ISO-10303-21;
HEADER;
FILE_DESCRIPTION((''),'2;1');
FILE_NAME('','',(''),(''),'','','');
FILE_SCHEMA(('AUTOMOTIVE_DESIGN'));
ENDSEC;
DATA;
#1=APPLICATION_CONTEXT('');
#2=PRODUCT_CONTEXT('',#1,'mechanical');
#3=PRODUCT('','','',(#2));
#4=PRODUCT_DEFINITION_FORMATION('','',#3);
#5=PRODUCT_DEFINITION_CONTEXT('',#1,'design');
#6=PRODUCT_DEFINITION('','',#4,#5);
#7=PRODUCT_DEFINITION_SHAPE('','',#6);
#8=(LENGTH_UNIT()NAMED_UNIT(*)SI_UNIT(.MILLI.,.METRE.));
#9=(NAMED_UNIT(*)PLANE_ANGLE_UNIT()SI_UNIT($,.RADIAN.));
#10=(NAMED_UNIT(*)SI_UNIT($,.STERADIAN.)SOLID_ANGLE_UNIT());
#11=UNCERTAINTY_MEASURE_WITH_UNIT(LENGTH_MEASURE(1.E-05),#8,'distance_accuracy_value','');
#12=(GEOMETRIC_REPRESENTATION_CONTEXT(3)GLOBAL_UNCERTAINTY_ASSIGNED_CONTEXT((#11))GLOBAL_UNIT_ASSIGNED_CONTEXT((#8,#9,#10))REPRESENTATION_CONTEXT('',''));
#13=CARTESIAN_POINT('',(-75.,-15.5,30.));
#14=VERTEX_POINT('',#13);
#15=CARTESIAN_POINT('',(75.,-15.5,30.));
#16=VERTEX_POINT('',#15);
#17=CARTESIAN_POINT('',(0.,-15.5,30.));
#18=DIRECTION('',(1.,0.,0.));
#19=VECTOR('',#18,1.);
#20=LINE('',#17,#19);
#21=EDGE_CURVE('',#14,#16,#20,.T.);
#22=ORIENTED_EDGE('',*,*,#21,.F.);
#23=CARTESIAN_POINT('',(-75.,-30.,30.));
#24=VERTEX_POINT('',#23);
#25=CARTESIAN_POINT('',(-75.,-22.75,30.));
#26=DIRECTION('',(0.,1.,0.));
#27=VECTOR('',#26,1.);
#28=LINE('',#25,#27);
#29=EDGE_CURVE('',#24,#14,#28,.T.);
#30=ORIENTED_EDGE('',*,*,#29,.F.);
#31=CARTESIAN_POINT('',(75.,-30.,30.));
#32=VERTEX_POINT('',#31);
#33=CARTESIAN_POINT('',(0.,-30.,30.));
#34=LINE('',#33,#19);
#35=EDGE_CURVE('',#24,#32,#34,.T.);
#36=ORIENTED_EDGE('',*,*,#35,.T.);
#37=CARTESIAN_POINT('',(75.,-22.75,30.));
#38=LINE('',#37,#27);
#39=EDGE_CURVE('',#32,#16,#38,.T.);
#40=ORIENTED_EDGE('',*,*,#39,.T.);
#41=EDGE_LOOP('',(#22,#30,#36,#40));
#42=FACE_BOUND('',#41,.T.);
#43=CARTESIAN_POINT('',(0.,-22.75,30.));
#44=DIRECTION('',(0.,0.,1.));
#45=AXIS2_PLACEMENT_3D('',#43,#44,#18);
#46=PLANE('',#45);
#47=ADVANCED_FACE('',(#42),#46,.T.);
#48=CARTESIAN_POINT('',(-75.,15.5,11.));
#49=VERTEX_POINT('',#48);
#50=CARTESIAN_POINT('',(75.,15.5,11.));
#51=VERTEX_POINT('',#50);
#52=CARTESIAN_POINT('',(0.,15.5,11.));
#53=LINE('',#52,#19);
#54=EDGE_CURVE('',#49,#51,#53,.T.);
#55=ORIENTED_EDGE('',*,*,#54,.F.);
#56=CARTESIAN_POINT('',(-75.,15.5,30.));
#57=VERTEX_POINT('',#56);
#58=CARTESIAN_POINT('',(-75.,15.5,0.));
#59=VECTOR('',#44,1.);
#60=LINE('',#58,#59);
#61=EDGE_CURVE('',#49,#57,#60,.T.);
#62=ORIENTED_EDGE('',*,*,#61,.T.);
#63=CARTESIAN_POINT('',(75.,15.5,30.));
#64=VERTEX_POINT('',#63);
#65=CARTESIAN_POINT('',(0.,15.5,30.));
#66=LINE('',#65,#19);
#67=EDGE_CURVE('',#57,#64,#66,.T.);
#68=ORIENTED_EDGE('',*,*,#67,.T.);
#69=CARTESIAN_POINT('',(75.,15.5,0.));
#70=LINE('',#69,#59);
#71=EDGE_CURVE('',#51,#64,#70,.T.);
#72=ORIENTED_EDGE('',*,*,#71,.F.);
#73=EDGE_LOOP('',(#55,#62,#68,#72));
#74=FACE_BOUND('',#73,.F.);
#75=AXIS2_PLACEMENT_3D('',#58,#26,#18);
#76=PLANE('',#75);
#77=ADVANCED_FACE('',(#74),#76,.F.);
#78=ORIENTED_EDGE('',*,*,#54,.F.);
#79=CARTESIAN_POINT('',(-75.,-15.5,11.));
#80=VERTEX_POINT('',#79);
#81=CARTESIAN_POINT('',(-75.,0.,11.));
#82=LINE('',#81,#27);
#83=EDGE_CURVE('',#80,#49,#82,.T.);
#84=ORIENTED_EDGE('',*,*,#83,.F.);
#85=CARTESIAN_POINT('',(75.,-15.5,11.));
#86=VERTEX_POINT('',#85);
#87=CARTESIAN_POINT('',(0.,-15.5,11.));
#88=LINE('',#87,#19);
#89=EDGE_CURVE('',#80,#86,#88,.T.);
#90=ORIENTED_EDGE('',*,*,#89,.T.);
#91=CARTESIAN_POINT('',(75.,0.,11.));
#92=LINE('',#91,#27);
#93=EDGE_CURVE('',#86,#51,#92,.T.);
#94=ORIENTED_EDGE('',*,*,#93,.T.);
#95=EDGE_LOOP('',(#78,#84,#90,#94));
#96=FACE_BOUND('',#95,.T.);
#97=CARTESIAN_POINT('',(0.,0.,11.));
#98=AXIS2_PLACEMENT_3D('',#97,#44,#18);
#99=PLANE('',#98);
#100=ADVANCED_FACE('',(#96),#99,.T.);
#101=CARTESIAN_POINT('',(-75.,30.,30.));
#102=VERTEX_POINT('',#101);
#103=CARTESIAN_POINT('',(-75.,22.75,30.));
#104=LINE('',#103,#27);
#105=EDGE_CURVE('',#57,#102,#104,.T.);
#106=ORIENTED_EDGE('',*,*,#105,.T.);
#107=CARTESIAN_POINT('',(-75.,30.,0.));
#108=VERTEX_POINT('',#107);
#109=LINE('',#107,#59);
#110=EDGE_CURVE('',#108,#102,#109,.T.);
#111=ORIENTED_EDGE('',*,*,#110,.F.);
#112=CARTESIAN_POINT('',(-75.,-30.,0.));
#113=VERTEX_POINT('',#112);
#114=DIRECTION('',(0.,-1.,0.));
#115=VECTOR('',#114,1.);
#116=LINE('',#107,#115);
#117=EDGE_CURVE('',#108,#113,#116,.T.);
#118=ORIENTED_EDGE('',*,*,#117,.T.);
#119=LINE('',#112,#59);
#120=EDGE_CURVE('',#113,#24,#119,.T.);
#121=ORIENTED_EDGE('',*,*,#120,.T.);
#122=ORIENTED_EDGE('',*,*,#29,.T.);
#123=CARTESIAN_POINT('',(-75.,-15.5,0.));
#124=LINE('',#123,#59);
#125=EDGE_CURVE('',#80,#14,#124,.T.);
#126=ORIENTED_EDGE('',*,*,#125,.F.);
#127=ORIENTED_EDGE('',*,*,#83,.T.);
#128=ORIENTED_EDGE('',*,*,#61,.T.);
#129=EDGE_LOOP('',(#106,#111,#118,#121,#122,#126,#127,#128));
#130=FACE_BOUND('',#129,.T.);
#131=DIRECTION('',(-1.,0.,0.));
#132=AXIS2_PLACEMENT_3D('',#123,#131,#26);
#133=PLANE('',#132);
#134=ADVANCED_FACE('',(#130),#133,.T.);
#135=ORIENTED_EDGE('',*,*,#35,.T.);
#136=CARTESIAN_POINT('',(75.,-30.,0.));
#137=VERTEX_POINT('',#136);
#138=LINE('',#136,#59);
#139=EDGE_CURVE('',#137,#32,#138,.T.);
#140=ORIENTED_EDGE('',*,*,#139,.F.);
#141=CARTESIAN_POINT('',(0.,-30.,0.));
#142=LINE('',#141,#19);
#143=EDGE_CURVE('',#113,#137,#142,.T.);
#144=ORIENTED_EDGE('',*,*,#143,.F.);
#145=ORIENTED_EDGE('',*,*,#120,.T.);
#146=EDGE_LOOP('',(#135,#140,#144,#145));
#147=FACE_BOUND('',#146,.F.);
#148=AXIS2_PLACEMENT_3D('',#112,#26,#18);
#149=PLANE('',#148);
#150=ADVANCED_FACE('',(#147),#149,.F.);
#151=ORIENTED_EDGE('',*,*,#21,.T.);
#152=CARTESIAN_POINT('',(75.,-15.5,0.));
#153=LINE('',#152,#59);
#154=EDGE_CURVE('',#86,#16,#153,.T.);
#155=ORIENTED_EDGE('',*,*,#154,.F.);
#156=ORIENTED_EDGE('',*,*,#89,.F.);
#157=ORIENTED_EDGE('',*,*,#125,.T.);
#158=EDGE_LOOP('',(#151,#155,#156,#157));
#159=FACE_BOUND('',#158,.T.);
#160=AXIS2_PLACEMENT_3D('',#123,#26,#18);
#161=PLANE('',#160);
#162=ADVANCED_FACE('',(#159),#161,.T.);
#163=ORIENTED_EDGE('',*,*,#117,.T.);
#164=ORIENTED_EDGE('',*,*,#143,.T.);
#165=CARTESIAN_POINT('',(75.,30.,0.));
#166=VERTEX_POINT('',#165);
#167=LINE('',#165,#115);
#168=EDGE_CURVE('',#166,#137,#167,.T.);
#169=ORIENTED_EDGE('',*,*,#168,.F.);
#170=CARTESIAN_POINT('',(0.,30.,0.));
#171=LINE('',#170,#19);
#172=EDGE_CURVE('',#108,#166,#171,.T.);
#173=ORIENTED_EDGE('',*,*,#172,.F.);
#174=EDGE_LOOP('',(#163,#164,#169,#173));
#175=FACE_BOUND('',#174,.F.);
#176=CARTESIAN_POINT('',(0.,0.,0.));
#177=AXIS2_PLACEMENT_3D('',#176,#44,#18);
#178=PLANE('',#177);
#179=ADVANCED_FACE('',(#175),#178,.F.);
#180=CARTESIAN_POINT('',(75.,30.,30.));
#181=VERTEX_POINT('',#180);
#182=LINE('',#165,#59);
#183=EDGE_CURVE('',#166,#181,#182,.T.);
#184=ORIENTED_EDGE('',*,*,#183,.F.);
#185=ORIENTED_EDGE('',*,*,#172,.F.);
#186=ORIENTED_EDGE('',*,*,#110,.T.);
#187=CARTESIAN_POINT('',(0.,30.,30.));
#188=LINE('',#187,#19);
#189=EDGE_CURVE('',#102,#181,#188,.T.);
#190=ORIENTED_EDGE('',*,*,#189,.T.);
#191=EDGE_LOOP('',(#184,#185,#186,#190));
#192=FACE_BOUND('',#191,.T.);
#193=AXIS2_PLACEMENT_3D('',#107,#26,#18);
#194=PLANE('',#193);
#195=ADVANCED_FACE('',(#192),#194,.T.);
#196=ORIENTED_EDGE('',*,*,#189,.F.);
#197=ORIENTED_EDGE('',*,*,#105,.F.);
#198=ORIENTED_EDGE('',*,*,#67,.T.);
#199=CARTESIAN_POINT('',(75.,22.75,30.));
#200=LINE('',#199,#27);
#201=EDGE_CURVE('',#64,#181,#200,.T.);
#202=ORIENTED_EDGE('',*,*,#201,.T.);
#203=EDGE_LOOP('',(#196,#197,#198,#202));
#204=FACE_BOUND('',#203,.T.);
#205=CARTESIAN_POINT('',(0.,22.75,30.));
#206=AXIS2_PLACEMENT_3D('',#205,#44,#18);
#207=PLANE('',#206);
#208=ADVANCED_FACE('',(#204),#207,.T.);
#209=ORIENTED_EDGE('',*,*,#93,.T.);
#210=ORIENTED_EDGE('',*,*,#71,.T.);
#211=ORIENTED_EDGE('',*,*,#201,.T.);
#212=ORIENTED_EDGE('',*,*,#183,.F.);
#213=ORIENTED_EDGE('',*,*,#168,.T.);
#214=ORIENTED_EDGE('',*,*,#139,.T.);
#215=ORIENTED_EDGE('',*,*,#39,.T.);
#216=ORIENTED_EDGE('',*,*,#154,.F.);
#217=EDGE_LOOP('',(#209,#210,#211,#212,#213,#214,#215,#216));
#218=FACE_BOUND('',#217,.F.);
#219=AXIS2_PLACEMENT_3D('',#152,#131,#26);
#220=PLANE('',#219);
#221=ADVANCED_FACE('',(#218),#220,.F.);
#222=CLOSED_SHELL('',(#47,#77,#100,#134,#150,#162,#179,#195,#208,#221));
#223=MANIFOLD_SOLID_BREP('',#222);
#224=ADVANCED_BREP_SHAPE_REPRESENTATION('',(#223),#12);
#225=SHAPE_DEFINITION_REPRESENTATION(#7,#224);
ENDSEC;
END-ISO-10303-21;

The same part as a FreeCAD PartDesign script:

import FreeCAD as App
import Part
import Sketcher
from FreeCAD import Vector
Q = App.Units.Quantity


def add_polygon(sketch, points):
    """Adds a closed chain of lines whose ends are joined by coincident constraints."""
    first, n = sketch.GeometryCount, len(points)
    for a, b in zip(points, points[1:] + points[:1]):
        sketch.addGeometry(Part.LineSegment(App.Vector(*a, 0), App.Vector(*b, 0)), False)
    for i in range(n):
        sketch.addConstraint(Sketcher.Constraint("Coincident", first + i, 2, first + (i + 1) % n, 1))

doc = App.newDocument("Part")
body = doc.addObject("PartDesign::Body", "Body")

sketch1 = doc.addObject("Sketcher::SketchObject", "Sketch")
body.addObject(sketch1)
sketch1.AttachmentSupport = (doc.XY_Plane, [""])
sketch1.MapMode = "FlatFace"
add_polygon(sketch1, [(-75, -16), (-75, -30), (75, -30), (75, -16)])
sketch1.addConstraint([
    Sketcher.Constraint("Vertical", 0),
    Sketcher.Constraint("Horizontal", 1),
    Sketcher.Constraint("Vertical", 2),
    Sketcher.Constraint("Horizontal", 3),
    Sketcher.Constraint("DistanceX", 1, 1, 1, 2, Q("150 mm")),
    Sketcher.Constraint("DistanceY", 0, 2, 0, 1, Q("14.5 mm")),
    Sketcher.Constraint("DistanceX", 0, 2, -1, 1, Q("75 mm")),
    Sketcher.Constraint("DistanceY", 0, 2, -1, 1, Q("30 mm")),
])
pad1 = doc.addObject("PartDesign::Pad", "Pad")
body.addObject(pad1)
pad1.Profile = sketch1
pad1.Length = 30
body2 = doc.addObject("PartDesign::Body", "Body001")

sketch2 = doc.addObject("Sketcher::SketchObject", "Sketch001")
body2.addObject(sketch2)
sketch2.AttachmentSupport = (doc.getObject("XY_Plane001"), [""])
sketch2.MapMode = "FlatFace"
add_polygon(sketch2, [(-75, 30), (-75, 16), (75, 16), (75, 30)])
sketch2.addConstraint([
    Sketcher.Constraint("Vertical", 0),
    Sketcher.Constraint("Horizontal", 1),
    Sketcher.Constraint("Vertical", 2),
    Sketcher.Constraint("Horizontal", 3),
    Sketcher.Constraint("DistanceX", 1, 1, 1, 2, Q("150 mm")),
    Sketcher.Constraint("DistanceY", 0, 2, 0, 1, Q("14.5 mm")),
    Sketcher.Constraint("DistanceX", 0, 2, -1, 1, Q("75 mm")),
    Sketcher.Constraint("DistanceY", -1, 1, 2, 2, Q("30 mm")),
])
pad2 = doc.addObject("PartDesign::Pad", "Pad001")
body2.addObject(pad2)
pad2.Profile = sketch2
pad2.Length = 30
body.AllowCompound = True
doc.recompute()

boolean = doc.addObject("PartDesign::Boolean", "Boolean")
body.addObject(boolean)
boolean.Type = "Fuse"
boolean.addObjects([body2])

sketch3 = doc.addObject("Sketcher::SketchObject", "Sketch002")
body.addObject(sketch3)
sketch3.AttachmentSupport = (doc.XY_Plane, [""])
sketch3.MapMode = "FlatFace"
add_polygon(sketch3, [(-75, 16), (-75, -16), (75, -16), (75, 16)])
sketch3.addConstraint([
    Sketcher.Constraint("Vertical", 0),
    Sketcher.Constraint("Horizontal", 1),
    Sketcher.Constraint("Vertical", 2),
    Sketcher.Constraint("Horizontal", 3),
    Sketcher.Constraint("Symmetric", 0, 2, 2, 2, -1, 1),
    Sketcher.Constraint("DistanceX", 1, 1, 1, 2, Q("150 mm")),
    Sketcher.Constraint("DistanceY", 0, 2, 0, 1, Q("31 mm")),
])
pad3 = doc.addObject("PartDesign::Pad", "Pad002")
body.addObject(pad3)
pad3.Profile = sketch3
pad3.Length = 11

sketch4 = doc.addObject("Sketcher::SketchObject", "Sketch003")
body.addObject(sketch4)
sketch4.AttachmentSupport = (doc.XY_Plane, [""])
sketch4.MapMode = "FlatFace"
add_polygon(sketch4, [(-75, 30), (-75, 16), (75, 16), (75, 30)])
sketch4.addConstraint([
    Sketcher.Constraint("Vertical", 0),
    Sketcher.Constraint("Horizontal", 1),
    Sketcher.Constraint("Vertical", 2),
    Sketcher.Constraint("Horizontal", 3),
    Sketcher.Constraint("DistanceX", 1, 1, 1, 2, Q("150 mm")),
    Sketcher.Constraint("DistanceY", 0, 2, 0, 1, Q("14.5 mm")),
    Sketcher.Constraint("DistanceX", 0, 2, -1, 1, Q("75 mm")),
    Sketcher.Constraint("DistanceY", -1, 1, 2, 2, Q("30 mm")),
])
pad4 = doc.addObject("PartDesign::Pad", "Pad003")
body.addObject(pad4)
pad4.Profile = sketch4
pad4.Length = 30

doc.recompute()
